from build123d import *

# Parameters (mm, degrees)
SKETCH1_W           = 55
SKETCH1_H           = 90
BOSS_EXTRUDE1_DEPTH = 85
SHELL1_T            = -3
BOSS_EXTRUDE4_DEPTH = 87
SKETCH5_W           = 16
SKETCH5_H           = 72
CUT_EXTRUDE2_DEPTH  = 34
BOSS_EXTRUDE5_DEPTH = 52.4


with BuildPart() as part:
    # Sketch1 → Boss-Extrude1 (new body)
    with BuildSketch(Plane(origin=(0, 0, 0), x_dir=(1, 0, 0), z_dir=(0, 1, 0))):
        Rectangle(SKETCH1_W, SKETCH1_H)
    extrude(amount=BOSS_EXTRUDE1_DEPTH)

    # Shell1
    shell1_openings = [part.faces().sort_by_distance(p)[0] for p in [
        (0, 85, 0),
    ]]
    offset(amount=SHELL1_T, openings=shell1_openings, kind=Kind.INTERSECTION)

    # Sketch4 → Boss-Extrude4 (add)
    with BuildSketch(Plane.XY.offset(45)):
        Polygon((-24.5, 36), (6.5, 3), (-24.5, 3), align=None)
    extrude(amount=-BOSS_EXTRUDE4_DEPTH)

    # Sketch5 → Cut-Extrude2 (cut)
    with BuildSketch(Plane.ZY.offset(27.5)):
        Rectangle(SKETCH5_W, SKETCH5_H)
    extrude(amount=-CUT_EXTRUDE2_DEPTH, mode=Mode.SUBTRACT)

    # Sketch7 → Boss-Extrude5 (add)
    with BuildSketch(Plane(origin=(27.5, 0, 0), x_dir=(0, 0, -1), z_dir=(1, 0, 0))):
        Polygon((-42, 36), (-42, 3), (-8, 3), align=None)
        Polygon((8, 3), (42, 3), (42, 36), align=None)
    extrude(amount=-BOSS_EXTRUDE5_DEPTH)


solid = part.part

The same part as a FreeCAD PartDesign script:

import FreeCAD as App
import Part
import Sketcher


def faces_at(feature, points):
    """Names of the faces that lie closest to the given points."""
    faces = feature.Shape.Faces
    near = lambda p: min(range(len(faces)), key=lambda i: faces[i].distToShape(Part.Vertex(*p))[0])
    return sorted({f"Face{near(p) + 1}" for p in points})


def add_polygon(sketch, points):
    """Adds a closed chain of lines whose ends are joined by coincident constraints."""
    first, n = sketch.GeometryCount, len(points)
    for a, b in zip(points, points[1:] + points[:1]):
        sketch.addGeometry(Part.LineSegment(App.Vector(*a, 0), App.Vector(*b, 0)), False)
    for i in range(n):
        sketch.addConstraint(Sketcher.Constraint("Coincident", first + i, 2, first + (i + 1) % n, 1))

doc = App.newDocument("Part")
params = doc.addObject("Spreadsheet::Sheet", "Params")
for row, (alias, value) in enumerate([
    ("sketch1_width", "55 mm"),
    ("sketch1_height", "90 mm"),
    ("pad1_length", "85 mm"),
    ("thickness_wall", "3 mm"),
    ("sketch2_width", "31 mm"),
    ("sketch2_height", "33 mm"),
    ("pad2_length", "87 mm"),
    ("sketch3_width", "72 mm"),
    ("sketch3_height", "16 mm"),
    ("pocket1_length", "34 mm"),
    ("sketch4_width", "33 mm"),
    ("sketch4_height", "34 mm"),
    ("pad3_length", "52.4 mm"),
], start=1):
    params.set(f"A{row}", alias)
    params.set(f"B{row}", "=" + value)
    params.setAlias(f"B{row}", alias)

body = doc.addObject("PartDesign::Body", "Body")

sketch1 = body.newObject("Sketcher::SketchObject", "Sketch")
sketch1.AttachmentSupport = (doc.getObject("XZ_Plane"), [""])
sketch1.MapMode = "FlatFace"
add_polygon(sketch1, [(-27.5, -45), (-27.5, 45), (27.5, 45), (27.5, -45)])
sketch1.addConstraint(Sketcher.Constraint("Vertical", 0))
sketch1.addConstraint(Sketcher.Constraint("Horizontal", 1))
sketch1.addConstraint(Sketcher.Constraint("Vertical", 2))
sketch1.addConstraint(Sketcher.Constraint("Horizontal", 3))
sketch1.addConstraint(Sketcher.Constraint("Symmetric", 0, 2, 2, 2, -1, 1))
sketch1.addConstraint(Sketcher.Constraint("DistanceX", 1, 1, 1, 2, 55.0))
sketch1.addConstraint(Sketcher.Constraint("DistanceY", 0, 1, 0, 2, 90.0))
sketch1.setExpression("Constraints[9]", "Params.sketch1_width")
sketch1.setExpression("Constraints[10]", "Params.sketch1_height")
pad1 = body.newObject("PartDesign::Pad", "Pad")
pad1.Profile = sketch1
pad1.setExpression("Length", "Params.pad1_length")
pad1.Reversed = True
doc.recompute()

thickness = body.newObject("PartDesign::Thickness", "Thickness")
thickness.Base = (pad1, faces_at(pad1, [(0, 85, 0)]))
thickness.setExpression("Value", "Params.thickness_wall")
thickness.Reversed = True
thickness.Join = "Intersection"

sketch2 = body.newObject("Sketcher::SketchObject", "Sketch001")
sketch2.AttachmentSupport = (doc.getObject("XY_Plane"), [""])
sketch2.MapMode = "FlatFace"
sketch2.AttachmentOffset = App.Placement(App.Vector(0, 0, 45), App.Rotation())
add_polygon(sketch2, [(6.5, 3), (-24.5, 36), (-24.5, 3)])
sketch2.addConstraint(Sketcher.Constraint("Vertical", 1))
sketch2.addConstraint(Sketcher.Constraint("Horizontal", 2))
sketch2.addConstraint(Sketcher.Constraint("DistanceX", 2, 1, 2, 2, 31.0))
sketch2.addConstraint(Sketcher.Constraint("DistanceY", 1, 2, 1, 1, 33.0))
sketch2.addConstraint(Sketcher.Constraint("DistanceY", -1, 1, 0, 2, 36.0))
sketch2.addConstraint(Sketcher.Constraint("DistanceX", 0, 2, -1, 1, 24.5))
sketch2.setExpression("Constraints[5]", "Params.sketch2_width")
sketch2.setExpression("Constraints[6]", "Params.sketch2_height")
pad2 = body.newObject("PartDesign::Pad", "Pad001")
pad2.Profile = sketch2
pad2.setExpression("Length", "Params.pad2_length")
pad2.Reversed = True

sketch3 = body.newObject("Sketcher::SketchObject", "Sketch002")
sketch3.AttachmentSupport = (doc.getObject("YZ_Plane"), [""])
sketch3.MapMode = "FlatFace"
sketch3.AttachmentOffset = App.Placement(App.Vector(0, 0, -27.5), App.Rotation())
add_polygon(sketch3, [(36, -8), (-36, -8), (-36, 8), (36, 8)])
sketch3.addConstraint(Sketcher.Constraint("Horizontal", 0))
sketch3.addConstraint(Sketcher.Constraint("Vertical", 1))
sketch3.addConstraint(Sketcher.Constraint("Horizontal", 2))
sketch3.addConstraint(Sketcher.Constraint("Vertical", 3))
sketch3.addConstraint(Sketcher.Constraint("Symmetric", 0, 2, 2, 2, -1, 1))
sketch3.addConstraint(Sketcher.Constraint("DistanceX", 0, 2, 0, 1, 72.0))
sketch3.addConstraint(Sketcher.Constraint("DistanceY", 1, 1, 1, 2, 16.0))
sketch3.setExpression("Constraints[9]", "Params.sketch3_width")
sketch3.setExpression("Constraints[10]", "Params.sketch3_height")
pocket1 = body.newObject("PartDesign::Pocket", "Pocket")
pocket1.Profile = sketch3
pocket1.setExpression("Length", "Params.pocket1_length")
pocket1.Reversed = True

sketch4 = body.newObject("Sketcher::SketchObject", "Sketch003")
sketch4.AttachmentSupport = (doc.getObject("YZ_Plane"), [""])
sketch4.MapMode = "FlatFace"
sketch4.AttachmentOffset = App.Placement(App.Vector(0, 0, 27.5), App.Rotation())
add_polygon(sketch4, [(36, 42), (3, 42), (3, 8)])
add_polygon(sketch4, [(3, -8), (3, -42), (36, -42)])
sketch4.addConstraint(Sketcher.Constraint("Horizontal", 0))
sketch4.addConstraint(Sketcher.Constraint("Vertical", 1))
sketch4.addConstraint(Sketcher.Constraint("Vertical", 3))
sketch4.addConstraint(Sketcher.Constraint("Horizontal", 4))
sketch4.addConstraint(Sketcher.Constraint("Symmetric", 0, 2, 3, 2, -1))
sketch4.addConstraint(Sketcher.Constraint("Vertical", 2, 2, 4, 2))
sketch4.addConstraint(Sketcher.Constraint("Equal", 1, 3))
sketch4.addConstraint(Sketcher.Constraint("DistanceX", 0, 2, 0, 1, 33.0))
sketch4.addConstraint(Sketcher.Constraint("DistanceY", 1, 2, 1, 1, 34.0))
sketch4.addConstraint(Sketcher.Constraint("DistanceX", -1, 1, 0, 2, 3.0))
sketch4.addConstraint(Sketcher.Constraint("DistanceY", -1, 1, 0, 2, 42.0))
sketch4.setExpression("Constraints[13]", "Params.sketch4_width")
sketch4.setExpression("Constraints[14]", "Params.sketch4_height")
pad3 = body.newObject("PartDesign::Pad", "Pad002")
pad3.Profile = sketch4
pad3.setExpression("Length", "Params.pad3_length")
pad3.Reversed = True

doc.recompute()
